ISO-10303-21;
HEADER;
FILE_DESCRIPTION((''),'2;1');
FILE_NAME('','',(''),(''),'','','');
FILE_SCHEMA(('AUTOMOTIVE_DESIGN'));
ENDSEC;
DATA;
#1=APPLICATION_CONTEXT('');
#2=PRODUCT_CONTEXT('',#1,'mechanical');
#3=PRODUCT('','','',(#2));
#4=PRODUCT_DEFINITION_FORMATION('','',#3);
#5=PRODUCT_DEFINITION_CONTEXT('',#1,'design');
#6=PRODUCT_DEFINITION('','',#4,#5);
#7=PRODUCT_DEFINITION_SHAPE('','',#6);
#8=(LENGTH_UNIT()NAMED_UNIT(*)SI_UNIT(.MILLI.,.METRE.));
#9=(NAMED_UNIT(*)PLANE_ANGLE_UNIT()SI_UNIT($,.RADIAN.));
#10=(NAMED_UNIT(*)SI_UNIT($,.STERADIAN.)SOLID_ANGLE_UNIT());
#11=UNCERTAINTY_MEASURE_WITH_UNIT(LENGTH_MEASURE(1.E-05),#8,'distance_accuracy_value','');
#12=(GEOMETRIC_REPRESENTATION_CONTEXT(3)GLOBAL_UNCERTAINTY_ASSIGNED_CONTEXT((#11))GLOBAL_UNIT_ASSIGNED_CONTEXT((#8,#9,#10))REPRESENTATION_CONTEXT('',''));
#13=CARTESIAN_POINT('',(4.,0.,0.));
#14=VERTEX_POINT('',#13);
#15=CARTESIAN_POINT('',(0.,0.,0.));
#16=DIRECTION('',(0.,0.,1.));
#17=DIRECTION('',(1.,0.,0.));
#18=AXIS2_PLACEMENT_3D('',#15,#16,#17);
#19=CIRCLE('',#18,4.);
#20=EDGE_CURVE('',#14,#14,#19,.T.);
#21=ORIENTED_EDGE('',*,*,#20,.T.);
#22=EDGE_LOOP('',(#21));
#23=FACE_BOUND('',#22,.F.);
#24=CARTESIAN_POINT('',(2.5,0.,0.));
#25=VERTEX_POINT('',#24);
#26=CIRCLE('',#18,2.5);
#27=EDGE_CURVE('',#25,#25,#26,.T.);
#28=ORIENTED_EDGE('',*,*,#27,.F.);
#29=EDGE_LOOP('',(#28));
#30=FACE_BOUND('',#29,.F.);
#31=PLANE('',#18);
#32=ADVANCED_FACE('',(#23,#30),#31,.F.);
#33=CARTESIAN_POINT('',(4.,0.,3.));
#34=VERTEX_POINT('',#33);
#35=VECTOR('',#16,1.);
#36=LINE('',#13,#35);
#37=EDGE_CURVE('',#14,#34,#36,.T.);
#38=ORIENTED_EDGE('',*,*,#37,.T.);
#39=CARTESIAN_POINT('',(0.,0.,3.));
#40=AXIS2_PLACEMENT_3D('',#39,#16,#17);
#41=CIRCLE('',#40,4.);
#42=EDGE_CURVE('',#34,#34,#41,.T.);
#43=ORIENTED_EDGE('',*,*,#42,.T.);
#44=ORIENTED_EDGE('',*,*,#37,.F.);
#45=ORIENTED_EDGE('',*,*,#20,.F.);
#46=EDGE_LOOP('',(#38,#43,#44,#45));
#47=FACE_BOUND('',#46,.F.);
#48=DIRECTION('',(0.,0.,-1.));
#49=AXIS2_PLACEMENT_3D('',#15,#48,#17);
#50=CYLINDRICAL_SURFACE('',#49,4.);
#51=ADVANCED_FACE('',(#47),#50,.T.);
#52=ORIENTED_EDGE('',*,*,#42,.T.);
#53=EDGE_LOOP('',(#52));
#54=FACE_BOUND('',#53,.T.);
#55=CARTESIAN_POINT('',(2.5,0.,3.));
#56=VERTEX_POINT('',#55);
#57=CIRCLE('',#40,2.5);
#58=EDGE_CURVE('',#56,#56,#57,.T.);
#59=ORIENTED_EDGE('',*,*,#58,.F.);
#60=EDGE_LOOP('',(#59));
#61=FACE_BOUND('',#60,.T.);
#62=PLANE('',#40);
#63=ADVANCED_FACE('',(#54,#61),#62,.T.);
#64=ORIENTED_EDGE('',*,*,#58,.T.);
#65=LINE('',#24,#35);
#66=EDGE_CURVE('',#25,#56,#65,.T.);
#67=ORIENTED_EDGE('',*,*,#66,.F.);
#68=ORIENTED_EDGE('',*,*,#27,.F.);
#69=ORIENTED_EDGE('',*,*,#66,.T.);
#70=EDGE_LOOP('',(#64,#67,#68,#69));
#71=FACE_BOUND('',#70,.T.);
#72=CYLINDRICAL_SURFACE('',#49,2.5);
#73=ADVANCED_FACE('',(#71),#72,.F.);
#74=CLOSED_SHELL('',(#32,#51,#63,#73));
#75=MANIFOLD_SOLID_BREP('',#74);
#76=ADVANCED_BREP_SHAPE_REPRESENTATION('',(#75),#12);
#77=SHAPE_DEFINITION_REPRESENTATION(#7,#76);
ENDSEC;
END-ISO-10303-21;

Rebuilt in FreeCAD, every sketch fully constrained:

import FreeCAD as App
import Part
import Sketcher

doc = App.newDocument("Part")
body = doc.addObject("PartDesign::Body", "Body")

# Sketch on XY plane
sketch1 = body.newObject("Sketcher::SketchObject", "Sketch")
sketch1.AttachmentSupport = (doc.getObject("XY_Plane"), [""])
sketch1.MapMode = "FlatFace"
sketch1.addGeometry([
    Part.Circle(App.Vector(0, 0, 0), App.Vector(0, 0, 1), 4),
    Part.Circle(App.Vector(0, 0, 0), App.Vector(0, 0, 1), 2.5),
], False)
sketch1.addConstraint([
    Sketcher.Constraint("Coincident", 0, 3, -1, 1),
    Sketcher.Constraint("Coincident", 1, 3, -1, 1),
    Sketcher.Constraint("Diameter", 0, 8.0),
    Sketcher.Constraint("Diameter", 1, 5.0),
])
pad1 = body.newObject("PartDesign::Pad", "Pad")
pad1.Profile = sketch1
pad1.Length = 3

doc.recompute()
